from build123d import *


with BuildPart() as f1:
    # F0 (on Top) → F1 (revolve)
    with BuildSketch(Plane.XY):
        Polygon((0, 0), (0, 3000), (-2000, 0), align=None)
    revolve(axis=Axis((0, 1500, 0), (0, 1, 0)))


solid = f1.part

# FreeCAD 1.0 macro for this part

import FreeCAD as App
import Part
import Sketcher
from FreeCAD import Vector

doc = App.newDocument("Part")
params = doc.addObject("Spreadsheet::Sheet", "Params")
for row, (alias, value) in enumerate([
    ("sketch1_width", "2000 mm"),
    ("sketch1_height", "3000 mm"),
    ("revolution_angle", "360 deg"),
], start=1):
    params.set(f"A{row}", alias)
    params.set(f"B{row}", "=" + value)
    params.setAlias(f"B{row}", alias)

body = doc.addObject("PartDesign::Body", "Body")

# Sketch on XY plane
sketch1 = doc.addObject("Sketcher::SketchObject", "Sketch")
body.addObject(sketch1)
sketch1.AttachmentSupport = (doc.XY_Plane, [""])
sketch1.MapMode = "FlatFace"
sketch1.addGeometry([
    Part.LineSegment(Vector(0, 0, 0), Vector(0, 3000, 0)),
    Part.LineSegment(Vector(0, 3000, 0), Vector(-2000, 0, 0)),
    Part.LineSegment(Vector(-2000, 0, 0), Vector(0, 0, 0)),
], False)
sketch1.addConstraint([
    Sketcher.Constraint("Coincident", 0, 2, 1, 1),
    Sketcher.Constraint("Coincident", 1, 2, 2, 1),
    Sketcher.Constraint("Coincident", 2, 2, 0, 1),
    Sketcher.Constraint("Vertical", 0),
    Sketcher.Constraint("Horizontal", 2),
    Sketcher.Constraint("Coincident", 2, 2, -1, 1),
    Sketcher.Constraint("DistanceX", 2, 1, 2, 2, 2000.0),
    Sketcher.Constraint("DistanceY", 0, 1, 0, 2, 3000.0),
])
sketch1.setExpression("Constraints[6]", "Params.sketch1_width")
sketch1.setExpression("Constraints[7]", "Params.sketch1_height")
revolution = doc.addObject("PartDesign::Revolution", "Revolution")
body.addObject(revolution)
revolution.Profile = sketch1
revolution.ReferenceAxis = (sketch1, ["V_Axis"])
revolution.setExpression("Angle", "Params.revolution_angle")

doc.recompute()
